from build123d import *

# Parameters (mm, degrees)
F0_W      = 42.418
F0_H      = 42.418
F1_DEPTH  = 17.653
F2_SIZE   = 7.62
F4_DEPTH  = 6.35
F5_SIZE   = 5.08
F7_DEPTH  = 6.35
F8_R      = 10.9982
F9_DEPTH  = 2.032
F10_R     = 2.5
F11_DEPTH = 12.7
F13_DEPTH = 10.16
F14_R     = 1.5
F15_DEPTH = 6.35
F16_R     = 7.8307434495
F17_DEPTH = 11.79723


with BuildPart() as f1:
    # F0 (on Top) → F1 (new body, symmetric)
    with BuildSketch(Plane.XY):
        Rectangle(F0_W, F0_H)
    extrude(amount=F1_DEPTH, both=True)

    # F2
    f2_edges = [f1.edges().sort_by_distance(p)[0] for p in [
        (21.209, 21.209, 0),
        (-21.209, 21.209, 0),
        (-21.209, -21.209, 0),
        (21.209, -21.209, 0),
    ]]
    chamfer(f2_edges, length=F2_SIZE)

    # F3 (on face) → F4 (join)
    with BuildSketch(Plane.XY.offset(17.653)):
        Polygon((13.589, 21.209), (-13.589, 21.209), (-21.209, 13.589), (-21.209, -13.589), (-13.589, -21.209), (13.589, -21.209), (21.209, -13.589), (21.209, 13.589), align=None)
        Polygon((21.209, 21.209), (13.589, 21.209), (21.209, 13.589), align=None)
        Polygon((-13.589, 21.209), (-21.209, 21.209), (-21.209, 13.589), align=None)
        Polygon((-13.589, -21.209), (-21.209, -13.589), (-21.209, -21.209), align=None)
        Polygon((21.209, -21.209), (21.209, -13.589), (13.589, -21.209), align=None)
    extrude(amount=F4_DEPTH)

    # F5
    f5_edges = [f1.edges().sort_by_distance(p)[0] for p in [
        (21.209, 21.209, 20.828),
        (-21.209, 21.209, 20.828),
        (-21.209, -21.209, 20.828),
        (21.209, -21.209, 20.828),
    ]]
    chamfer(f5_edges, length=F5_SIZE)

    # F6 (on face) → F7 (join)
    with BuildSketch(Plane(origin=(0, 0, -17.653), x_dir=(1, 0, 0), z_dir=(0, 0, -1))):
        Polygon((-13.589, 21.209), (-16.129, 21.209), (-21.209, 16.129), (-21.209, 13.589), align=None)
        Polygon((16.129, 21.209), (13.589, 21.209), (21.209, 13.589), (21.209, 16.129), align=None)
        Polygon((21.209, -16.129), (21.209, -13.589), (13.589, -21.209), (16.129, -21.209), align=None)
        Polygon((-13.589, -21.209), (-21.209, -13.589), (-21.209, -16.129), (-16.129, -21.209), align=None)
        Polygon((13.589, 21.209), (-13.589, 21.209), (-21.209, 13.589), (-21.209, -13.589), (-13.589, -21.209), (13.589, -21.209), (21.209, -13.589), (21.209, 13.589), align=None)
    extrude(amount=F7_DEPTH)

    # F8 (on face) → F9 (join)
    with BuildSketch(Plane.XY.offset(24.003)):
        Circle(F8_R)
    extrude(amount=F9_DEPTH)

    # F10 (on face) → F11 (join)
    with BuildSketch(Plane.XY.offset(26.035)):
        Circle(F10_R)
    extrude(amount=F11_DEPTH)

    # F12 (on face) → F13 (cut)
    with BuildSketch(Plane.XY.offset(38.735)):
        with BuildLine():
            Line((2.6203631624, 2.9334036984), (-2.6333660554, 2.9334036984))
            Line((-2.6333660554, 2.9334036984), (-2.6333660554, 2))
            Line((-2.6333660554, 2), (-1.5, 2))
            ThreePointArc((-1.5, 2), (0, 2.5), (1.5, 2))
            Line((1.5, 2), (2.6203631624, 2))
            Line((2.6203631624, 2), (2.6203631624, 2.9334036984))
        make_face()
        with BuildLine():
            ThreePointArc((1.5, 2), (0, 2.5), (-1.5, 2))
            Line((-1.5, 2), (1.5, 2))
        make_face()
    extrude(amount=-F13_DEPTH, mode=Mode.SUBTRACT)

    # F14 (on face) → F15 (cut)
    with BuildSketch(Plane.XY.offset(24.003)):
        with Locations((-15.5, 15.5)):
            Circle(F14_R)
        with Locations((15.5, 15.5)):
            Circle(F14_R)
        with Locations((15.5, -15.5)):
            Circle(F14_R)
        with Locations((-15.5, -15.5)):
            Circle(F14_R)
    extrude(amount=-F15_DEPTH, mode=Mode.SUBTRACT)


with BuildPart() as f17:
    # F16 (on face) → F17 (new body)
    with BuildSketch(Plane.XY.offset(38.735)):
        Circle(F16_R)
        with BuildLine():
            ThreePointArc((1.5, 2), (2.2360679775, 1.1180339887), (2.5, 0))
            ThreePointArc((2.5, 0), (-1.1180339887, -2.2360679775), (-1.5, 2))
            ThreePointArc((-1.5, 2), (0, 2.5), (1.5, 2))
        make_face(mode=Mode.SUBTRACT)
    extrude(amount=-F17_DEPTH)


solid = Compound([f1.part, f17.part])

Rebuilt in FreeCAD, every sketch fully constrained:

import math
import FreeCAD as App
import Part
import Sketcher

V = App.Vector
Q = App.Units.Quantity


def edges_at(feature, points):
    """Names of the edges that pass closest to the given points."""
    edges = feature.Shape.Edges
    near = lambda p: min(range(len(edges)), key=lambda i: edges[i].distToShape(Part.Vertex(*p))[0])
    return sorted({f"Edge{near(p) + 1}" for p in points})


def add_polygon(sketch, points):
    """Adds a closed chain of lines whose ends are joined by coincident constraints."""
    first, n = sketch.GeometryCount, len(points)
    for a, b in zip(points, points[1:] + points[:1]):
        sketch.addGeometry(Part.LineSegment(App.Vector(*a, 0), App.Vector(*b, 0)), False)
    for i in range(n):
        sketch.addConstraint(Sketcher.Constraint("Coincident", first + i, 2, first + (i + 1) % n, 1))

doc = App.newDocument("Part")
params = doc.addObject("Spreadsheet::Sheet", "Params")
for row, (alias, value) in enumerate([
    ("sketch1_width", "1.67 in"),
    ("pad1_length", "1.39 in"),
    ("chamfer_size", "0.3 in"),
    ("sketch2_width", "1.67 in"),
    ("pad2_length", "0.25 in"),
    ("chamfer2_size", "0.2 in"),
    ("sketch3_width", "1.27 in"),
    ("pad3_length", "0.25 in"),
    ("sketch4_diameter", "0.866 in"),
    ("pad4_length", "0.08 in"),
    ("pad5_length", "0.5 in"),
    ("pocket1_length", "0.4 in"),
    ("pocket2_length", "0.25 in"),
    ("pad6_length", "11.79723 mm"),
], start=1):
    params.set(f"A{row}", alias)
    params.set(f"B{row}", "=" + value)
    params.setAlias(f"B{row}", alias)

body = doc.addObject("PartDesign::Body", "Body")

# Sketch on XY plane
sketch1 = body.newObject("Sketcher::SketchObject", "Sketch")
sketch1.AttachmentSupport = (doc.getObject("XY_Plane"), [""])
sketch1.MapMode = "FlatFace"
add_polygon(sketch1, [(-21.209, 21.209), (-21.209, -21.209), (21.209, -21.209), (21.209, 21.209)])  # lines 0-3
sketch1.addConstraint([
    Sketcher.Constraint("Vertical", 0),
    Sketcher.Constraint("Horizontal", 1),
    Sketcher.Constraint("Vertical", 2),
    Sketcher.Constraint("Horizontal", 3),
    Sketcher.Constraint("Symmetric", 0, 2, 2, 2, -1, 1),
    Sketcher.Constraint("Equal", 3, 0),
    Sketcher.Constraint("DistanceX", 1, 1, 1, 2, Q("1.67 in")),
])
sketch1.setExpression("Constraints[10]", "Params.sketch1_width")
pad1 = body.newObject("PartDesign::Pad", "Pad")
pad1.Profile = sketch1
pad1.setExpression("Length", "Params.pad1_length")
pad1.Midplane = True
doc.recompute()

chamfer = body.newObject("PartDesign::Chamfer", "Chamfer")
chamfer.Base = (pad1, edges_at(pad1, [
    (21.209, 21.209, 0),
    (-21.209, 21.209, 0),
    (-21.209, -21.209, 0),
    (21.209, -21.209, 0),
]))
chamfer.setExpression("Size", "Params.chamfer_size")

# Sketch on XY plane
sketch2 = body.newObject("Sketcher::SketchObject", "Sketch001")
sketch2.AttachmentSupport = (doc.getObject("XY_Plane"), [""])
sketch2.MapMode = "FlatFace"
sketch2.AttachmentOffset = App.Placement(V(0, 0, 0.695 * 25.4), App.Rotation())
add_polygon(sketch2, [(21.209, 21.209), (-21.209, 21.209), (-21.209, -21.209), (21.209, -21.209)])  # lines 0-3
sketch2.addConstraint([
    Sketcher.Constraint("Horizontal", 0),
    Sketcher.Constraint("Vertical", 1),
    Sketcher.Constraint("Horizontal", 2),
    Sketcher.Constraint("Vertical", 3),
    Sketcher.Constraint("Symmetric", 0, 2, 2, 2, -1, 1),
    Sketcher.Constraint("Equal", 2, 1),
    Sketcher.Constraint("DistanceX", 0, 2, 0, 1, Q("1.67 in")),
])
sketch2.setExpression("Constraints[10]", "Params.sketch2_width")
pad2 = body.newObject("PartDesign::Pad", "Pad001")
pad2.Profile = sketch2
pad2.setExpression("Length", "Params.pad2_length")
doc.recompute()

chamfer2 = body.newObject("PartDesign::Chamfer", "Chamfer001")
chamfer2.Base = (pad2, edges_at(pad2, [
    (21.209, 21.209, 20.828),
    (-21.209, 21.209, 20.828),
    (-21.209, -21.209, 20.828),
    (21.209, -21.209, 20.828),
]))
chamfer2.setExpression("Size", "Params.chamfer2_size")

# Sketch on XY plane
sketch3 = body.newObject("Sketcher::SketchObject", "Sketch002")
sketch3.AttachmentSupport = (doc.getObject("XY_Plane"), [""])
sketch3.MapMode = "FlatFace"
sketch3.AttachmentOffset = App.Placement(V(0, 0, -0.695 * 25.4), App.Rotation())
add_polygon(sketch3, [(-16.129, -21.209), (-21.209, -16.129), (-21.209, 16.129), (-16.129, 21.209), (16.129, 21.209), (21.209, 16.129), (21.209, -16.129), (16.129, -21.209)])  # lines 0-7
sketch3.addConstraint([
    Sketcher.Constraint("Vertical", 1),
    Sketcher.Constraint("Horizontal", 3),
    Sketcher.Constraint("Vertical", 5),
    Sketcher.Constraint("Horizontal", 7),
    Sketcher.Constraint("Symmetric", 0, 2, 4, 2, -1, 1),
    Sketcher.Constraint("Symmetric", 2, 2, 6, 2, -1, 1),
    Sketcher.Constraint("Perpendicular", 0, 2),
    Sketcher.Constraint("Perpendicular", 2, 4),
    Sketcher.Constraint("Perpendicular", 4, 6),
    Sketcher.Constraint("Horizontal", 1, 2, 4, 2),
    Sketcher.Constraint("Vertical", 3, 2, 6, 2),
    Sketcher.Constraint("Equal", 7, 1),
    Sketcher.Constraint("DistanceX", 3, 1, 3, 2, Q("1.27 in")),
    Sketcher.Constraint("DistanceX", 1, 2, 2, 2, Q("0.2 in")),
])
sketch3.setExpression("Constraints[20]", "Params.sketch3_width")
pad3 = body.newObject("PartDesign::Pad", "Pad002")
pad3.Profile = sketch3
pad3.setExpression("Length", "Params.pad3_length")
pad3.Reversed = True

# Sketch on XY plane
sketch4 = body.newObject("Sketcher::SketchObject", "Sketch003")
sketch4.AttachmentSupport = (doc.getObject("XY_Plane"), [""])
sketch4.MapMode = "FlatFace"
sketch4.AttachmentOffset = App.Placement(V(0, 0, 0.945 * 25.4), App.Rotation())
sketch4.addGeometry(Part.Circle(V(0, 0, 0), V(0, 0, 1), 10.9982), False)
sketch4.addConstraint([
    Sketcher.Constraint("Coincident", 0, 3, -1, 1),
    Sketcher.Constraint("Diameter", 0, Q("0.866 in")),
])
sketch4.setExpression("Constraints[1]", "Params.sketch4_diameter")
pad4 = body.newObject("PartDesign::Pad", "Pad003")
pad4.Profile = sketch4
pad4.setExpression("Length", "Params.pad4_length")

# Sketch on XY plane
sketch5 = body.newObject("Sketcher::SketchObject", "Sketch004")
sketch5.AttachmentSupport = (doc.getObject("XY_Plane"), [""])
sketch5.MapMode = "FlatFace"
sketch5.AttachmentOffset = App.Placement(V(0, 0, 1.025 * 25.4), App.Rotation())
sketch5.addGeometry(Part.Circle(V(0, 0, 0), V(0, 0, 1), 2.5), False)
sketch5.addConstraint([
    Sketcher.Constraint("Coincident", 0, 3, -1, 1),
    Sketcher.Constraint("Diameter", 0, 5.0),
])
pad5 = body.newObject("PartDesign::Pad", "Pad004")
pad5.Profile = sketch5
pad5.setExpression("Length", "Params.pad5_length")

# Sketch on XY plane
sketch6 = body.newObject("Sketcher::SketchObject", "Sketch005")
sketch6.AttachmentSupport = (doc.getObject("XY_Plane"), [""])
sketch6.MapMode = "FlatFace"
sketch6.AttachmentOffset = App.Placement(V(0, 0, 1.525 * 25.4), App.Rotation())
add_polygon(sketch6, [(2.620363, 2.933404), (-2.633366, 2.933404), (-2.633366, 2), (2.620363, 2)])  # lines 0-3
sketch6.addConstraint([
    Sketcher.Constraint("Horizontal", 0),
    Sketcher.Constraint("Vertical", 1),
    Sketcher.Constraint("Horizontal", 2),
    Sketcher.Constraint("Vertical", 3),
    Sketcher.Constraint("DistanceX", 0, 2, 0, 1, 5.253729),
    Sketcher.Constraint("DistanceY", -1, 1, 1, 2, 2.0),
    Sketcher.Constraint("DistanceY", 1, 2, 1, 1, 0.933404),
    Sketcher.Constraint("DistanceX", 0, 2, -1, 1, 2.633366),
])
pocket1 = body.newObject("PartDesign::Pocket", "Pocket")
pocket1.Profile = sketch6
pocket1.setExpression("Length", "Params.pocket1_length")

# Sketch on XY plane
sketch7 = body.newObject("Sketcher::SketchObject", "Sketch006")
sketch7.AttachmentSupport = (doc.getObject("XY_Plane"), [""])
sketch7.MapMode = "FlatFace"
sketch7.AttachmentOffset = App.Placement(V(0, 0, 0.945 * 25.4), App.Rotation())
sketch7.addGeometry([
    Part.Circle(V(-15.5, 15.5, 0), V(0, 0, 1), 1.5),
    Part.Circle(V(15.5, 15.5, 0), V(0, 0, 1), 1.5),
    Part.Circle(V(15.5, -15.5, 0), V(0, 0, 1), 1.5),
    Part.Circle(V(-15.5, -15.5, 0), V(0, 0, 1), 1.5),
], False)
sketch7.addConstraint([
    Sketcher.Constraint("Equal", 0, 1),
    Sketcher.Constraint("Equal", 1, 2),
    Sketcher.Constraint("Equal", 2, 3),
    Sketcher.Constraint("Symmetric", 0, 3, 2, 3, -1, 1),
    Sketcher.Constraint("Symmetric", 1, 3, 3, 3, -1, 1),
    Sketcher.Constraint("Symmetric", 0, 3, 1, 3, -2),
    Sketcher.Constraint("Diameter", 0, 3.0),
    Sketcher.Constraint("DistanceX", 0, 3, -1, 1, 15.5),
    Sketcher.Constraint("DistanceY", -1, 1, 0, 3, 15.5),
])
pocket2 = body.newObject("PartDesign::Pocket", "Pocket001")
pocket2.Profile = sketch7
pocket2.setExpression("Length", "Params.pocket2_length")
body2 = doc.addObject("PartDesign::Body", "Body001")

# Sketch on XY plane
sketch8 = body2.newObject("Sketcher::SketchObject", "Sketch007")
sketch8.AttachmentSupport = (doc.getObject("XY_Plane001"), [""])
sketch8.MapMode = "FlatFace"
sketch8.AttachmentOffset = App.Placement(V(0, 0, 1.525 * 25.4), App.Rotation())
sketch8.addGeometry([
    Part.Circle(V(0, 0, 0), V(0, 0, 1), 7.830743),
    Part.ArcOfCircle(Part.Circle(V(0, 0, 0), V(0, 0, 1), 2.5), math.radians(53.130102), math.radians(126.869898)),
    Part.ArcOfCircle(Part.Circle(V(0, 0, 0), V(0, 0, 1), 2.5), math.radians(0), math.radians(53.130102)),
    Part.ArcOfCircle(Part.Circle(V(0, 0, 0), V(0, 0, 1), 2.5), math.radians(126.869898), math.radians(360)),
], False)
sketch8.addConstraint([
    Sketcher.Constraint("Tangent", 1, 1, 2, 2),
    Sketcher.Constraint("Tangent", 2, 1, 3, 2),
    Sketcher.Constraint("Tangent", 3, 1, 1, 2),
    Sketcher.Constraint("Coincident", 0, 3, -1, 1),
    Sketcher.Constraint("Coincident", 1, 3, -1, 1),
    Sketcher.Constraint("PointOnObject", 2, 1, -1),
    Sketcher.Constraint("Horizontal", 1, 1, 3, 1),
    Sketcher.Constraint("Radius", 1, 2.5),
    Sketcher.Constraint("Diameter", 0, 15.661487),
    Sketcher.Constraint("DistanceX", -1, 1, 1, 1, 1.5),
])
pad6 = body2.newObject("PartDesign::Pad", "Pad005")
pad6.Profile = sketch8
pad6.setExpression("Length", "Params.pad6_length")
pad6.Reversed = True

doc.recompute()
